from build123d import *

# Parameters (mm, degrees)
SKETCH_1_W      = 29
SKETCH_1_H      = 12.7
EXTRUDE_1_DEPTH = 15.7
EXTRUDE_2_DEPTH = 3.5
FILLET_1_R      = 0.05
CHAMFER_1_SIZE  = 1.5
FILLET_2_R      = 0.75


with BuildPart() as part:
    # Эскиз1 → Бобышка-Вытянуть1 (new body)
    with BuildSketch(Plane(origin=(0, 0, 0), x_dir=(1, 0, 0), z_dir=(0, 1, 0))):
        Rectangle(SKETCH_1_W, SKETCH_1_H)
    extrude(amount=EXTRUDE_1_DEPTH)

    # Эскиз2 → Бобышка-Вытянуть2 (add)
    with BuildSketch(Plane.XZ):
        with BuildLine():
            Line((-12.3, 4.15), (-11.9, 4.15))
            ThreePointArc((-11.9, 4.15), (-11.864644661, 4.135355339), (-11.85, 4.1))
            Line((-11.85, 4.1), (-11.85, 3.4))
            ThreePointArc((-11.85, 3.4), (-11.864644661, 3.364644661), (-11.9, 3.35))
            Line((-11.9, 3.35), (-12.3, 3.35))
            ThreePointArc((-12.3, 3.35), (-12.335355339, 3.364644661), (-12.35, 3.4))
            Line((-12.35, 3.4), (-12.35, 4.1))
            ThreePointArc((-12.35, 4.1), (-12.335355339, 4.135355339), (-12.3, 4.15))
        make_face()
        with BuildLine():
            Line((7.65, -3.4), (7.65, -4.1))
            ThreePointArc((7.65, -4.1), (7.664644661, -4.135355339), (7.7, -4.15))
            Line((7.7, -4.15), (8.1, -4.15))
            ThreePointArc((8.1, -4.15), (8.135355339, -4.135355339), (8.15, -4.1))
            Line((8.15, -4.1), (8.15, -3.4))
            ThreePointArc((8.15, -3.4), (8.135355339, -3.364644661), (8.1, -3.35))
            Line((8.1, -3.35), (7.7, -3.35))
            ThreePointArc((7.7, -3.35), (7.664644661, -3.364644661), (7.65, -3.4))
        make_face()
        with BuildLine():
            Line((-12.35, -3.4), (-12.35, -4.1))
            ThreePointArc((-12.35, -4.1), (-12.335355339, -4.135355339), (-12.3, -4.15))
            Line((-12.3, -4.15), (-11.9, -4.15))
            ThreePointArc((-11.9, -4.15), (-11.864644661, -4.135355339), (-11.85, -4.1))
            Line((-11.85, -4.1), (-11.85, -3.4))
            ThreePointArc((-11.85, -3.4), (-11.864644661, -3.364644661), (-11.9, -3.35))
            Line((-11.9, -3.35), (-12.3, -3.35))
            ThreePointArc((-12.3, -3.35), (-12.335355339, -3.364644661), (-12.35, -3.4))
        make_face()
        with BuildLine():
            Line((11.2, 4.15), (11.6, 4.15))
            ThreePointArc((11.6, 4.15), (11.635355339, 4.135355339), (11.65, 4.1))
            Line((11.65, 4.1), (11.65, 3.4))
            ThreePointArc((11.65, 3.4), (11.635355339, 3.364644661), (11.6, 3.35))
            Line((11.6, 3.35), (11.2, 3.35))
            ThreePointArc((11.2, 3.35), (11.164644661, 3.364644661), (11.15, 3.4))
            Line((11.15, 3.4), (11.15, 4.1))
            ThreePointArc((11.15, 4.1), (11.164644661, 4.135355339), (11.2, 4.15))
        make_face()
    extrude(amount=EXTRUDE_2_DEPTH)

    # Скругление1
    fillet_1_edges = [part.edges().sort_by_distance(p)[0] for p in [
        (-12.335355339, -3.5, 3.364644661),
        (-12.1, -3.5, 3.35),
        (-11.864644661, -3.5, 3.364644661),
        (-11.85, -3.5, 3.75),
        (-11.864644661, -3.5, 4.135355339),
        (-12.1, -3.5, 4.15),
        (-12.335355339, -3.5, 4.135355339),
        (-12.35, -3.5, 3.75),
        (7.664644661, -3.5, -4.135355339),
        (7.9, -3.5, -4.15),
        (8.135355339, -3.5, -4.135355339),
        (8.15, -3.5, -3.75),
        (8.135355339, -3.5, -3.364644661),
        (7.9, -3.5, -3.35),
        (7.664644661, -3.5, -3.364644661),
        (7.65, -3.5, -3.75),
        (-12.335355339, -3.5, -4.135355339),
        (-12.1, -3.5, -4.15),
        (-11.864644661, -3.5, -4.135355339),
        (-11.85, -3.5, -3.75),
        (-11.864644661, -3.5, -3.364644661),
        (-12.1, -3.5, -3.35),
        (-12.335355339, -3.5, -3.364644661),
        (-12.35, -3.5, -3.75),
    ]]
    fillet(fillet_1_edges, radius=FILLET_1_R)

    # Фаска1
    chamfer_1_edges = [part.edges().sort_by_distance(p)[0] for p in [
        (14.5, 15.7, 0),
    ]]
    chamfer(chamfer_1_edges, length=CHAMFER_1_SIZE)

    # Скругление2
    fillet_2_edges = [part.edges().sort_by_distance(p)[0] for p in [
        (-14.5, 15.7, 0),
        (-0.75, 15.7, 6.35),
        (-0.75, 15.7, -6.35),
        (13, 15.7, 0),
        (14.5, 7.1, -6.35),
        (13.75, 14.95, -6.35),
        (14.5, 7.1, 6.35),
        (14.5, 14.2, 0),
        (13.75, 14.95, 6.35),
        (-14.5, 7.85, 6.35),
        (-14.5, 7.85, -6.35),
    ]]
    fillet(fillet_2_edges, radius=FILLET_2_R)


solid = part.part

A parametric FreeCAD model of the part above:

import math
import FreeCAD as App
import Part
import Sketcher
Q = App.Units.Quantity


def edges_at(feature, points):
    """Names of the edges that pass closest to the given points."""
    edges = feature.Shape.Edges
    near = lambda p: min(range(len(edges)), key=lambda i: edges[i].distToShape(Part.Vertex(*p))[0])
    return sorted({f"Edge{near(p) + 1}" for p in points})


def add_polygon(sketch, points):
    """Adds a closed chain of lines whose ends are joined by coincident constraints."""
    first, n = sketch.GeometryCount, len(points)
    for a, b in zip(points, points[1:] + points[:1]):
        sketch.addGeometry(Part.LineSegment(App.Vector(*a, 0), App.Vector(*b, 0)), False)
    for i in range(n):
        sketch.addConstraint(Sketcher.Constraint("Coincident", first + i, 2, first + (i + 1) % n, 1))

doc = App.newDocument("Part")
params = doc.addObject("Spreadsheet::Sheet", "Params")
for row, (alias, value) in enumerate([
    ("sketch1_width", "29 mm"),
    ("sketch1_height", "12.7 mm"),
    ("pad1_length", "15.7 mm"),
    ("sketch2_radius", "0.05 mm"),
    ("sketch2_width", "0.4 mm"),
    ("sketch2_height", "0.7 mm"),
    ("pad2_length", "3.5 mm"),
    ("fillet_radius", "0.05 mm"),
    ("chamfer_size", "1.5 mm"),
    ("fillet2_radius", "0.75 mm"),
], start=1):
    params.set(f"A{row}", alias)
    params.set(f"B{row}", "=" + value)
    params.setAlias(f"B{row}", alias)

body = doc.addObject("PartDesign::Body", "Body")

# Sketch on XZ plane
sketch1 = body.newObject("Sketcher::SketchObject", "Sketch")
sketch1.AttachmentSupport = (doc.getObject("XZ_Plane"), [""])
sketch1.MapMode = "FlatFace"
add_polygon(sketch1, [(-14.5, -6.35), (-14.5, 6.35), (14.5, 6.35), (14.5, -6.35)])  # lines 0-3
sketch1.addConstraint(Sketcher.Constraint("Vertical", 0))
sketch1.addConstraint(Sketcher.Constraint("Horizontal", 1))
sketch1.addConstraint(Sketcher.Constraint("Vertical", 2))
sketch1.addConstraint(Sketcher.Constraint("Horizontal", 3))
sketch1.addConstraint(Sketcher.Constraint("Symmetric", 0, 2, 2, 2, -1, 1))
sketch1.addConstraint(Sketcher.Constraint("DistanceX", 1, 1, 1, 2, Q("29 mm")))
sketch1.addConstraint(Sketcher.Constraint("DistanceY", 0, 1, 0, 2, Q("12.7 mm")))
sketch1.setExpression("Constraints[9]", "Params.sketch1_width")
sketch1.setExpression("Constraints[10]", "Params.sketch1_height")
pad1 = body.newObject("PartDesign::Pad", "Pad")
pad1.Profile = sketch1
pad1.setExpression("Length", "Params.pad1_length")
pad1.Reversed = True

# Sketch on XZ plane
sketch2 = body.newObject("Sketcher::SketchObject", "Sketch001")
sketch2.AttachmentSupport = (doc.getObject("XZ_Plane"), [""])
sketch2.MapMode = "FlatFace"
sketch2.addGeometry(Part.LineSegment(App.Vector(-11.9, 4.15, 0), App.Vector(-12.3, 4.15, 0)), False)
sketch2.addGeometry(Part.ArcOfCircle(Part.Circle(App.Vector(-12.3, 4.1, 0), App.Vector(0, 0, 1), 0.05), math.radians(90), math.radians(180)), False)
sketch2.addGeometry(Part.LineSegment(App.Vector(-12.35, 4.1, 0), App.Vector(-12.35, 3.4, 0)), False)
sketch2.addGeometry(Part.ArcOfCircle(Part.Circle(App.Vector(-12.3, 3.4, 0), App.Vector(0, 0, 1), 0.05), math.radians(180), math.radians(270)), False)
sketch2.addGeometry(Part.LineSegment(App.Vector(-12.3, 3.35, 0), App.Vector(-11.9, 3.35, 0)), False)
sketch2.addGeometry(Part.ArcOfCircle(Part.Circle(App.Vector(-11.9, 3.4, 0), App.Vector(0, 0, 1), 0.05), math.radians(-90), math.radians(0)), False)
sketch2.addGeometry(Part.LineSegment(App.Vector(-11.85, 3.4, 0), App.Vector(-11.85, 4.1, 0)), False)
sketch2.addGeometry(Part.ArcOfCircle(Part.Circle(App.Vector(-11.9, 4.1, 0), App.Vector(0, 0, 1), 0.05), math.radians(0), math.radians(90)), False)
sketch2.addGeometry(Part.LineSegment(App.Vector(7.65, -3.4, 0), App.Vector(7.65, -4.1, 0)), False)
sketch2.addGeometry(Part.ArcOfCircle(Part.Circle(App.Vector(7.7, -4.1, 0), App.Vector(0, 0, 1), 0.05), math.radians(180), math.radians(270)), False)
sketch2.addGeometry(Part.LineSegment(App.Vector(7.7, -4.15, 0), App.Vector(8.1, -4.15, 0)), False)
sketch2.addGeometry(Part.ArcOfCircle(Part.Circle(App.Vector(8.1, -4.1, 0), App.Vector(0, 0, 1), 0.05), math.radians(-90), math.radians(0)), False)
sketch2.addGeometry(Part.LineSegment(App.Vector(8.15, -4.1, 0), App.Vector(8.15, -3.4, 0)), False)
sketch2.addGeometry(Part.ArcOfCircle(Part.Circle(App.Vector(8.1, -3.4, 0), App.Vector(0, 0, 1), 0.05), math.radians(0), math.radians(90)), False)
sketch2.addGeometry(Part.LineSegment(App.Vector(8.1, -3.35, 0), App.Vector(7.7, -3.35, 0)), False)
sketch2.addGeometry(Part.ArcOfCircle(Part.Circle(App.Vector(7.7, -3.4, 0), App.Vector(0, 0, 1), 0.05), math.radians(90), math.radians(180)), False)
sketch2.addGeometry(Part.LineSegment(App.Vector(-12.35, -3.4, 0), App.Vector(-12.35, -4.1, 0)), False)
sketch2.addGeometry(Part.ArcOfCircle(Part.Circle(App.Vector(-12.3, -4.1, 0), App.Vector(0, 0, 1), 0.05), math.radians(180), math.radians(270)), False)
sketch2.addGeometry(Part.LineSegment(App.Vector(-12.3, -4.15, 0), App.Vector(-11.9, -4.15, 0)), False)
sketch2.addGeometry(Part.ArcOfCircle(Part.Circle(App.Vector(-11.9, -4.1, 0), App.Vector(0, 0, 1), 0.05), math.radians(-90), math.radians(0)), False)
sketch2.addGeometry(Part.LineSegment(App.Vector(-11.85, -4.1, 0), App.Vector(-11.85, -3.4, 0)), False)
sketch2.addGeometry(Part.ArcOfCircle(Part.Circle(App.Vector(-11.9, -3.4, 0), App.Vector(0, 0, 1), 0.05), math.radians(0), math.radians(90)), False)
sketch2.addGeometry(Part.LineSegment(App.Vector(-11.9, -3.35, 0), App.Vector(-12.3, -3.35, 0)), False)
sketch2.addGeometry(Part.ArcOfCircle(Part.Circle(App.Vector(-12.3, -3.4, 0), App.Vector(0, 0, 1), 0.05), math.radians(90), math.radians(180)), False)
sketch2.addGeometry(Part.LineSegment(App.Vector(11.6, 4.15, 0), App.Vector(11.2, 4.15, 0)), False)
sketch2.addGeometry(Part.ArcOfCircle(Part.Circle(App.Vector(11.2, 4.1, 0), App.Vector(0, 0, 1), 0.05), math.radians(90), math.radians(180)), False)
sketch2.addGeometry(Part.LineSegment(App.Vector(11.15, 4.1, 0), App.Vector(11.15, 3.4, 0)), False)
sketch2.addGeometry(Part.ArcOfCircle(Part.Circle(App.Vector(11.2, 3.4, 0), App.Vector(0, 0, 1), 0.05), math.radians(180), math.radians(270)), False)
sketch2.addGeometry(Part.LineSegment(App.Vector(11.2, 3.35, 0), App.Vector(11.6, 3.35, 0)), False)
sketch2.addGeometry(Part.ArcOfCircle(Part.Circle(App.Vector(11.6, 3.4, 0), App.Vector(0, 0, 1), 0.05), math.radians(-90), math.radians(0)), False)
sketch2.addGeometry(Part.LineSegment(App.Vector(11.65, 3.4, 0), App.Vector(11.65, 4.1, 0)), False)
sketch2.addGeometry(Part.ArcOfCircle(Part.Circle(App.Vector(11.6, 4.1, 0), App.Vector(0, 0, 1), 0.05), math.radians(0), math.radians(90)), False)
sketch2.addConstraint(Sketcher.Constraint("Tangent", 0, 2, 1, 1))
sketch2.addConstraint(Sketcher.Constraint("Tangent", 1, 2, 2, 1))
sketch2.addConstraint(Sketcher.Constraint("Tangent", 2, 2, 3, 1))
sketch2.addConstraint(Sketcher.Constraint("Tangent", 3, 2, 4, 1))
sketch2.addConstraint(Sketcher.Constraint("Tangent", 4, 2, 5, 1))
sketch2.addConstraint(Sketcher.Constraint("Tangent", 5, 2, 6, 1))
sketch2.addConstraint(Sketcher.Constraint("Tangent", 6, 2, 7, 1))
sketch2.addConstraint(Sketcher.Constraint("Tangent", 7, 2, 0, 1))
sketch2.addConstraint(Sketcher.Constraint("Tangent", 8, 2, 9, 1))
sketch2.addConstraint(Sketcher.Constraint("Tangent", 9, 2, 10, 1))
sketch2.addConstraint(Sketcher.Constraint("Tangent", 10, 2, 11, 1))
sketch2.addConstraint(Sketcher.Constraint("Tangent", 11, 2, 12, 1))
sketch2.addConstraint(Sketcher.Constraint("Tangent", 12, 2, 13, 1))
sketch2.addConstraint(Sketcher.Constraint("Tangent", 13, 2, 14, 1))
sketch2.addConstraint(Sketcher.Constraint("Tangent", 14, 2, 15, 1))
sketch2.addConstraint(Sketcher.Constraint("Tangent", 15, 2, 8, 1))
sketch2.addConstraint(Sketcher.Constraint("Tangent", 16, 2, 17, 1))
sketch2.addConstraint(Sketcher.Constraint("Tangent", 17, 2, 18, 1))
sketch2.addConstraint(Sketcher.Constraint("Tangent", 18, 2, 19, 1))
sketch2.addConstraint(Sketcher.Constraint("Tangent", 19, 2, 20, 1))
sketch2.addConstraint(Sketcher.Constraint("Tangent", 20, 2, 21, 1))
sketch2.addConstraint(Sketcher.Constraint("Tangent", 21, 2, 22, 1))
sketch2.addConstraint(Sketcher.Constraint("Tangent", 22, 2, 23, 1))
sketch2.addConstraint(Sketcher.Constraint("Tangent", 23, 2, 16, 1))
sketch2.addConstraint(Sketcher.Constraint("Tangent", 24, 2, 25, 1))
sketch2.addConstraint(Sketcher.Constraint("Tangent", 25, 2, 26, 1))
sketch2.addConstraint(Sketcher.Constraint("Tangent", 26, 2, 27, 1))
sketch2.addConstraint(Sketcher.Constraint("Tangent", 27, 2, 28, 1))
sketch2.addConstraint(Sketcher.Constraint("Tangent", 28, 2, 29, 1))
sketch2.addConstraint(Sketcher.Constraint("Tangent", 29, 2, 30, 1))
sketch2.addConstraint(Sketcher.Constraint("Tangent", 30, 2, 31, 1))
sketch2.addConstraint(Sketcher.Constraint("Tangent", 31, 2, 24, 1))
sketch2.addConstraint(Sketcher.Constraint("Horizontal", 0))
sketch2.addConstraint(Sketcher.Constraint("Vertical", 2))
sketch2.addConstraint(Sketcher.Constraint("Horizontal", 4))
sketch2.addConstraint(Sketcher.Constraint("Vertical", 6))
sketch2.addConstraint(Sketcher.Constraint("Vertical", 8))
sketch2.addConstraint(Sketcher.Constraint("Horizontal", 10))
sketch2.addConstraint(Sketcher.Constraint("Vertical", 12))
sketch2.addConstraint(Sketcher.Constraint("Horizontal", 14))
sketch2.addConstraint(Sketcher.Constraint("Vertical", 16))
sketch2.addConstraint(Sketcher.Constraint("Horizontal", 18))
sketch2.addConstraint(Sketcher.Constraint("Vertical", 20))
sketch2.addConstraint(Sketcher.Constraint("Horizontal", 22))
sketch2.addConstraint(Sketcher.Constraint("Horizontal", 24))
sketch2.addConstraint(Sketcher.Constraint("Vertical", 26))
sketch2.addConstraint(Sketcher.Constraint("Horizontal", 28))
sketch2.addConstraint(Sketcher.Constraint("Vertical", 30))
sketch2.addConstraint(Sketcher.Constraint("Equal", 1, 3))
sketch2.addConstraint(Sketcher.Constraint("Equal", 3, 5))
sketch2.addConstraint(Sketcher.Constraint("Equal", 5, 7))
sketch2.addConstraint(Sketcher.Constraint("Equal", 7, 9))
sketch2.addConstraint(Sketcher.Constraint("Equal", 9, 11))
sketch2.addConstraint(Sketcher.Constraint("Equal", 11, 13))
sketch2.addConstraint(Sketcher.Constraint("Equal", 13, 15))
sketch2.addConstraint(Sketcher.Constraint("Equal", 15, 17))
sketch2.addConstraint(Sketcher.Constraint("Equal", 17, 19))
sketch2.addConstraint(Sketcher.Constraint("Equal", 19, 21))
sketch2.addConstraint(Sketcher.Constraint("Equal", 21, 23))
sketch2.addConstraint(Sketcher.Constraint("Equal", 23, 25))
sketch2.addConstraint(Sketcher.Constraint("Equal", 25, 27))
sketch2.addConstraint(Sketcher.Constraint("Equal", 27, 29))
sketch2.addConstraint(Sketcher.Constraint("Equal", 29, 31))
sketch2.addConstraint(Sketcher.Constraint("Symmetric", 1, 3, 17, 3, -1))
sketch2.addConstraint(Sketcher.Constraint("Symmetric", 5, 3, 21, 3, -1))
sketch2.addConstraint(Sketcher.Constraint("Horizontal", 11, 3, 17, 3))
sketch2.addConstraint(Sketcher.Constraint("Horizontal", 15, 3, 21, 3))
sketch2.addConstraint(Sketcher.Constraint("Horizontal", 7, 3, 25, 3))
sketch2.addConstraint(Sketcher.Constraint("Horizontal", 5, 3, 27, 3))
sketch2.addConstraint(Sketcher.Constraint("Equal", 4, 10))
sketch2.addConstraint(Sketcher.Constraint("Equal", 22, 24))
sketch2.addConstraint(Sketcher.Constraint("Radius", 1, Q("0.05 mm")))
sketch2.addConstraint(Sketcher.Constraint("DistanceX", 0, 2, 0, 1, Q("0.4 mm")))
sketch2.addConstraint(Sketcher.Constraint("DistanceY", 2, 2, 2, 1, Q("0.7 mm")))
sketch2.addConstraint(Sketcher.Constraint("DistanceX", 3, 3, 9, 3, Q("20 mm")))
sketch2.addConstraint(Sketcher.Constraint("DistanceX", 1, 3, -1, 1, Q("12.3 mm")))
sketch2.addConstraint(Sketcher.Constraint("DistanceY", -1, 1, 1, 3, Q("4.1 mm")))
sketch2.addConstraint(Sketcher.Constraint("DistanceX", -1, 1, 25, 3, Q("11.2 mm")))
sketch2.setExpression("Constraints[71]", "Params.sketch2_radius")
sketch2.setExpression("Constraints[72]", "Params.sketch2_width")
sketch2.setExpression("Constraints[73]", "Params.sketch2_height")
pad2 = body.newObject("PartDesign::Pad", "Pad001")
pad2.Profile = sketch2
pad2.setExpression("Length", "Params.pad2_length")
doc.recompute()

fillet = body.newObject("PartDesign::Fillet", "Fillet")
fillet.Base = (pad2, edges_at(pad2, [
    (-12.335, -3.5, 3.365),
    (-12.1, -3.5, 3.35),
    (-11.865, -3.5, 3.365),
    (-11.85, -3.5, 3.75),
    (-11.865, -3.5, 4.135),
    (-12.1, -3.5, 4.15),
    (-12.335, -3.5, 4.135),
    (-12.35, -3.5, 3.75),
    (7.665, -3.5, -4.135),
    (7.9, -3.5, -4.15),
    (8.135, -3.5, -4.135),
    (8.15, -3.5, -3.75),
    (8.135, -3.5, -3.365),
    (7.9, -3.5, -3.35),
    (7.665, -3.5, -3.365),
    (7.65, -3.5, -3.75),
    (-12.335, -3.5, -4.135),
    (-12.1, -3.5, -4.15),
    (-11.865, -3.5, -4.135),
    (-11.85, -3.5, -3.75),
    (-11.865, -3.5, -3.365),
    (-12.1, -3.5, -3.35),
    (-12.335, -3.5, -3.365),
    (-12.35, -3.5, -3.75),
]))
fillet.setExpression("Radius", "Params.fillet_radius")
doc.recompute()

chamfer = body.newObject("PartDesign::Chamfer", "Chamfer")
chamfer.Base = (fillet, edges_at(fillet, [(14.5, 15.7, 0)]))
chamfer.setExpression("Size", "Params.chamfer_size")
doc.recompute()

fillet2 = body.newObject("PartDesign::Fillet", "Fillet001")
fillet2.Base = (chamfer, edges_at(chamfer, [
    (-14.5, 15.7, 0),
    (-0.75, 15.7, 6.35),
    (-0.75, 15.7, -6.35),
    (13, 15.7, 0),
    (14.5, 7.1, -6.35),
    (13.75, 14.95, -6.35),
    (14.5, 7.1, 6.35),
    (14.5, 14.2, 0),
    (13.75, 14.95, 6.35),
    (-14.5, 7.85, 6.35),
    (-14.5, 7.85, -6.35),
]))
fillet2.setExpression("Radius", "Params.fillet2_radius")

doc.recompute()
